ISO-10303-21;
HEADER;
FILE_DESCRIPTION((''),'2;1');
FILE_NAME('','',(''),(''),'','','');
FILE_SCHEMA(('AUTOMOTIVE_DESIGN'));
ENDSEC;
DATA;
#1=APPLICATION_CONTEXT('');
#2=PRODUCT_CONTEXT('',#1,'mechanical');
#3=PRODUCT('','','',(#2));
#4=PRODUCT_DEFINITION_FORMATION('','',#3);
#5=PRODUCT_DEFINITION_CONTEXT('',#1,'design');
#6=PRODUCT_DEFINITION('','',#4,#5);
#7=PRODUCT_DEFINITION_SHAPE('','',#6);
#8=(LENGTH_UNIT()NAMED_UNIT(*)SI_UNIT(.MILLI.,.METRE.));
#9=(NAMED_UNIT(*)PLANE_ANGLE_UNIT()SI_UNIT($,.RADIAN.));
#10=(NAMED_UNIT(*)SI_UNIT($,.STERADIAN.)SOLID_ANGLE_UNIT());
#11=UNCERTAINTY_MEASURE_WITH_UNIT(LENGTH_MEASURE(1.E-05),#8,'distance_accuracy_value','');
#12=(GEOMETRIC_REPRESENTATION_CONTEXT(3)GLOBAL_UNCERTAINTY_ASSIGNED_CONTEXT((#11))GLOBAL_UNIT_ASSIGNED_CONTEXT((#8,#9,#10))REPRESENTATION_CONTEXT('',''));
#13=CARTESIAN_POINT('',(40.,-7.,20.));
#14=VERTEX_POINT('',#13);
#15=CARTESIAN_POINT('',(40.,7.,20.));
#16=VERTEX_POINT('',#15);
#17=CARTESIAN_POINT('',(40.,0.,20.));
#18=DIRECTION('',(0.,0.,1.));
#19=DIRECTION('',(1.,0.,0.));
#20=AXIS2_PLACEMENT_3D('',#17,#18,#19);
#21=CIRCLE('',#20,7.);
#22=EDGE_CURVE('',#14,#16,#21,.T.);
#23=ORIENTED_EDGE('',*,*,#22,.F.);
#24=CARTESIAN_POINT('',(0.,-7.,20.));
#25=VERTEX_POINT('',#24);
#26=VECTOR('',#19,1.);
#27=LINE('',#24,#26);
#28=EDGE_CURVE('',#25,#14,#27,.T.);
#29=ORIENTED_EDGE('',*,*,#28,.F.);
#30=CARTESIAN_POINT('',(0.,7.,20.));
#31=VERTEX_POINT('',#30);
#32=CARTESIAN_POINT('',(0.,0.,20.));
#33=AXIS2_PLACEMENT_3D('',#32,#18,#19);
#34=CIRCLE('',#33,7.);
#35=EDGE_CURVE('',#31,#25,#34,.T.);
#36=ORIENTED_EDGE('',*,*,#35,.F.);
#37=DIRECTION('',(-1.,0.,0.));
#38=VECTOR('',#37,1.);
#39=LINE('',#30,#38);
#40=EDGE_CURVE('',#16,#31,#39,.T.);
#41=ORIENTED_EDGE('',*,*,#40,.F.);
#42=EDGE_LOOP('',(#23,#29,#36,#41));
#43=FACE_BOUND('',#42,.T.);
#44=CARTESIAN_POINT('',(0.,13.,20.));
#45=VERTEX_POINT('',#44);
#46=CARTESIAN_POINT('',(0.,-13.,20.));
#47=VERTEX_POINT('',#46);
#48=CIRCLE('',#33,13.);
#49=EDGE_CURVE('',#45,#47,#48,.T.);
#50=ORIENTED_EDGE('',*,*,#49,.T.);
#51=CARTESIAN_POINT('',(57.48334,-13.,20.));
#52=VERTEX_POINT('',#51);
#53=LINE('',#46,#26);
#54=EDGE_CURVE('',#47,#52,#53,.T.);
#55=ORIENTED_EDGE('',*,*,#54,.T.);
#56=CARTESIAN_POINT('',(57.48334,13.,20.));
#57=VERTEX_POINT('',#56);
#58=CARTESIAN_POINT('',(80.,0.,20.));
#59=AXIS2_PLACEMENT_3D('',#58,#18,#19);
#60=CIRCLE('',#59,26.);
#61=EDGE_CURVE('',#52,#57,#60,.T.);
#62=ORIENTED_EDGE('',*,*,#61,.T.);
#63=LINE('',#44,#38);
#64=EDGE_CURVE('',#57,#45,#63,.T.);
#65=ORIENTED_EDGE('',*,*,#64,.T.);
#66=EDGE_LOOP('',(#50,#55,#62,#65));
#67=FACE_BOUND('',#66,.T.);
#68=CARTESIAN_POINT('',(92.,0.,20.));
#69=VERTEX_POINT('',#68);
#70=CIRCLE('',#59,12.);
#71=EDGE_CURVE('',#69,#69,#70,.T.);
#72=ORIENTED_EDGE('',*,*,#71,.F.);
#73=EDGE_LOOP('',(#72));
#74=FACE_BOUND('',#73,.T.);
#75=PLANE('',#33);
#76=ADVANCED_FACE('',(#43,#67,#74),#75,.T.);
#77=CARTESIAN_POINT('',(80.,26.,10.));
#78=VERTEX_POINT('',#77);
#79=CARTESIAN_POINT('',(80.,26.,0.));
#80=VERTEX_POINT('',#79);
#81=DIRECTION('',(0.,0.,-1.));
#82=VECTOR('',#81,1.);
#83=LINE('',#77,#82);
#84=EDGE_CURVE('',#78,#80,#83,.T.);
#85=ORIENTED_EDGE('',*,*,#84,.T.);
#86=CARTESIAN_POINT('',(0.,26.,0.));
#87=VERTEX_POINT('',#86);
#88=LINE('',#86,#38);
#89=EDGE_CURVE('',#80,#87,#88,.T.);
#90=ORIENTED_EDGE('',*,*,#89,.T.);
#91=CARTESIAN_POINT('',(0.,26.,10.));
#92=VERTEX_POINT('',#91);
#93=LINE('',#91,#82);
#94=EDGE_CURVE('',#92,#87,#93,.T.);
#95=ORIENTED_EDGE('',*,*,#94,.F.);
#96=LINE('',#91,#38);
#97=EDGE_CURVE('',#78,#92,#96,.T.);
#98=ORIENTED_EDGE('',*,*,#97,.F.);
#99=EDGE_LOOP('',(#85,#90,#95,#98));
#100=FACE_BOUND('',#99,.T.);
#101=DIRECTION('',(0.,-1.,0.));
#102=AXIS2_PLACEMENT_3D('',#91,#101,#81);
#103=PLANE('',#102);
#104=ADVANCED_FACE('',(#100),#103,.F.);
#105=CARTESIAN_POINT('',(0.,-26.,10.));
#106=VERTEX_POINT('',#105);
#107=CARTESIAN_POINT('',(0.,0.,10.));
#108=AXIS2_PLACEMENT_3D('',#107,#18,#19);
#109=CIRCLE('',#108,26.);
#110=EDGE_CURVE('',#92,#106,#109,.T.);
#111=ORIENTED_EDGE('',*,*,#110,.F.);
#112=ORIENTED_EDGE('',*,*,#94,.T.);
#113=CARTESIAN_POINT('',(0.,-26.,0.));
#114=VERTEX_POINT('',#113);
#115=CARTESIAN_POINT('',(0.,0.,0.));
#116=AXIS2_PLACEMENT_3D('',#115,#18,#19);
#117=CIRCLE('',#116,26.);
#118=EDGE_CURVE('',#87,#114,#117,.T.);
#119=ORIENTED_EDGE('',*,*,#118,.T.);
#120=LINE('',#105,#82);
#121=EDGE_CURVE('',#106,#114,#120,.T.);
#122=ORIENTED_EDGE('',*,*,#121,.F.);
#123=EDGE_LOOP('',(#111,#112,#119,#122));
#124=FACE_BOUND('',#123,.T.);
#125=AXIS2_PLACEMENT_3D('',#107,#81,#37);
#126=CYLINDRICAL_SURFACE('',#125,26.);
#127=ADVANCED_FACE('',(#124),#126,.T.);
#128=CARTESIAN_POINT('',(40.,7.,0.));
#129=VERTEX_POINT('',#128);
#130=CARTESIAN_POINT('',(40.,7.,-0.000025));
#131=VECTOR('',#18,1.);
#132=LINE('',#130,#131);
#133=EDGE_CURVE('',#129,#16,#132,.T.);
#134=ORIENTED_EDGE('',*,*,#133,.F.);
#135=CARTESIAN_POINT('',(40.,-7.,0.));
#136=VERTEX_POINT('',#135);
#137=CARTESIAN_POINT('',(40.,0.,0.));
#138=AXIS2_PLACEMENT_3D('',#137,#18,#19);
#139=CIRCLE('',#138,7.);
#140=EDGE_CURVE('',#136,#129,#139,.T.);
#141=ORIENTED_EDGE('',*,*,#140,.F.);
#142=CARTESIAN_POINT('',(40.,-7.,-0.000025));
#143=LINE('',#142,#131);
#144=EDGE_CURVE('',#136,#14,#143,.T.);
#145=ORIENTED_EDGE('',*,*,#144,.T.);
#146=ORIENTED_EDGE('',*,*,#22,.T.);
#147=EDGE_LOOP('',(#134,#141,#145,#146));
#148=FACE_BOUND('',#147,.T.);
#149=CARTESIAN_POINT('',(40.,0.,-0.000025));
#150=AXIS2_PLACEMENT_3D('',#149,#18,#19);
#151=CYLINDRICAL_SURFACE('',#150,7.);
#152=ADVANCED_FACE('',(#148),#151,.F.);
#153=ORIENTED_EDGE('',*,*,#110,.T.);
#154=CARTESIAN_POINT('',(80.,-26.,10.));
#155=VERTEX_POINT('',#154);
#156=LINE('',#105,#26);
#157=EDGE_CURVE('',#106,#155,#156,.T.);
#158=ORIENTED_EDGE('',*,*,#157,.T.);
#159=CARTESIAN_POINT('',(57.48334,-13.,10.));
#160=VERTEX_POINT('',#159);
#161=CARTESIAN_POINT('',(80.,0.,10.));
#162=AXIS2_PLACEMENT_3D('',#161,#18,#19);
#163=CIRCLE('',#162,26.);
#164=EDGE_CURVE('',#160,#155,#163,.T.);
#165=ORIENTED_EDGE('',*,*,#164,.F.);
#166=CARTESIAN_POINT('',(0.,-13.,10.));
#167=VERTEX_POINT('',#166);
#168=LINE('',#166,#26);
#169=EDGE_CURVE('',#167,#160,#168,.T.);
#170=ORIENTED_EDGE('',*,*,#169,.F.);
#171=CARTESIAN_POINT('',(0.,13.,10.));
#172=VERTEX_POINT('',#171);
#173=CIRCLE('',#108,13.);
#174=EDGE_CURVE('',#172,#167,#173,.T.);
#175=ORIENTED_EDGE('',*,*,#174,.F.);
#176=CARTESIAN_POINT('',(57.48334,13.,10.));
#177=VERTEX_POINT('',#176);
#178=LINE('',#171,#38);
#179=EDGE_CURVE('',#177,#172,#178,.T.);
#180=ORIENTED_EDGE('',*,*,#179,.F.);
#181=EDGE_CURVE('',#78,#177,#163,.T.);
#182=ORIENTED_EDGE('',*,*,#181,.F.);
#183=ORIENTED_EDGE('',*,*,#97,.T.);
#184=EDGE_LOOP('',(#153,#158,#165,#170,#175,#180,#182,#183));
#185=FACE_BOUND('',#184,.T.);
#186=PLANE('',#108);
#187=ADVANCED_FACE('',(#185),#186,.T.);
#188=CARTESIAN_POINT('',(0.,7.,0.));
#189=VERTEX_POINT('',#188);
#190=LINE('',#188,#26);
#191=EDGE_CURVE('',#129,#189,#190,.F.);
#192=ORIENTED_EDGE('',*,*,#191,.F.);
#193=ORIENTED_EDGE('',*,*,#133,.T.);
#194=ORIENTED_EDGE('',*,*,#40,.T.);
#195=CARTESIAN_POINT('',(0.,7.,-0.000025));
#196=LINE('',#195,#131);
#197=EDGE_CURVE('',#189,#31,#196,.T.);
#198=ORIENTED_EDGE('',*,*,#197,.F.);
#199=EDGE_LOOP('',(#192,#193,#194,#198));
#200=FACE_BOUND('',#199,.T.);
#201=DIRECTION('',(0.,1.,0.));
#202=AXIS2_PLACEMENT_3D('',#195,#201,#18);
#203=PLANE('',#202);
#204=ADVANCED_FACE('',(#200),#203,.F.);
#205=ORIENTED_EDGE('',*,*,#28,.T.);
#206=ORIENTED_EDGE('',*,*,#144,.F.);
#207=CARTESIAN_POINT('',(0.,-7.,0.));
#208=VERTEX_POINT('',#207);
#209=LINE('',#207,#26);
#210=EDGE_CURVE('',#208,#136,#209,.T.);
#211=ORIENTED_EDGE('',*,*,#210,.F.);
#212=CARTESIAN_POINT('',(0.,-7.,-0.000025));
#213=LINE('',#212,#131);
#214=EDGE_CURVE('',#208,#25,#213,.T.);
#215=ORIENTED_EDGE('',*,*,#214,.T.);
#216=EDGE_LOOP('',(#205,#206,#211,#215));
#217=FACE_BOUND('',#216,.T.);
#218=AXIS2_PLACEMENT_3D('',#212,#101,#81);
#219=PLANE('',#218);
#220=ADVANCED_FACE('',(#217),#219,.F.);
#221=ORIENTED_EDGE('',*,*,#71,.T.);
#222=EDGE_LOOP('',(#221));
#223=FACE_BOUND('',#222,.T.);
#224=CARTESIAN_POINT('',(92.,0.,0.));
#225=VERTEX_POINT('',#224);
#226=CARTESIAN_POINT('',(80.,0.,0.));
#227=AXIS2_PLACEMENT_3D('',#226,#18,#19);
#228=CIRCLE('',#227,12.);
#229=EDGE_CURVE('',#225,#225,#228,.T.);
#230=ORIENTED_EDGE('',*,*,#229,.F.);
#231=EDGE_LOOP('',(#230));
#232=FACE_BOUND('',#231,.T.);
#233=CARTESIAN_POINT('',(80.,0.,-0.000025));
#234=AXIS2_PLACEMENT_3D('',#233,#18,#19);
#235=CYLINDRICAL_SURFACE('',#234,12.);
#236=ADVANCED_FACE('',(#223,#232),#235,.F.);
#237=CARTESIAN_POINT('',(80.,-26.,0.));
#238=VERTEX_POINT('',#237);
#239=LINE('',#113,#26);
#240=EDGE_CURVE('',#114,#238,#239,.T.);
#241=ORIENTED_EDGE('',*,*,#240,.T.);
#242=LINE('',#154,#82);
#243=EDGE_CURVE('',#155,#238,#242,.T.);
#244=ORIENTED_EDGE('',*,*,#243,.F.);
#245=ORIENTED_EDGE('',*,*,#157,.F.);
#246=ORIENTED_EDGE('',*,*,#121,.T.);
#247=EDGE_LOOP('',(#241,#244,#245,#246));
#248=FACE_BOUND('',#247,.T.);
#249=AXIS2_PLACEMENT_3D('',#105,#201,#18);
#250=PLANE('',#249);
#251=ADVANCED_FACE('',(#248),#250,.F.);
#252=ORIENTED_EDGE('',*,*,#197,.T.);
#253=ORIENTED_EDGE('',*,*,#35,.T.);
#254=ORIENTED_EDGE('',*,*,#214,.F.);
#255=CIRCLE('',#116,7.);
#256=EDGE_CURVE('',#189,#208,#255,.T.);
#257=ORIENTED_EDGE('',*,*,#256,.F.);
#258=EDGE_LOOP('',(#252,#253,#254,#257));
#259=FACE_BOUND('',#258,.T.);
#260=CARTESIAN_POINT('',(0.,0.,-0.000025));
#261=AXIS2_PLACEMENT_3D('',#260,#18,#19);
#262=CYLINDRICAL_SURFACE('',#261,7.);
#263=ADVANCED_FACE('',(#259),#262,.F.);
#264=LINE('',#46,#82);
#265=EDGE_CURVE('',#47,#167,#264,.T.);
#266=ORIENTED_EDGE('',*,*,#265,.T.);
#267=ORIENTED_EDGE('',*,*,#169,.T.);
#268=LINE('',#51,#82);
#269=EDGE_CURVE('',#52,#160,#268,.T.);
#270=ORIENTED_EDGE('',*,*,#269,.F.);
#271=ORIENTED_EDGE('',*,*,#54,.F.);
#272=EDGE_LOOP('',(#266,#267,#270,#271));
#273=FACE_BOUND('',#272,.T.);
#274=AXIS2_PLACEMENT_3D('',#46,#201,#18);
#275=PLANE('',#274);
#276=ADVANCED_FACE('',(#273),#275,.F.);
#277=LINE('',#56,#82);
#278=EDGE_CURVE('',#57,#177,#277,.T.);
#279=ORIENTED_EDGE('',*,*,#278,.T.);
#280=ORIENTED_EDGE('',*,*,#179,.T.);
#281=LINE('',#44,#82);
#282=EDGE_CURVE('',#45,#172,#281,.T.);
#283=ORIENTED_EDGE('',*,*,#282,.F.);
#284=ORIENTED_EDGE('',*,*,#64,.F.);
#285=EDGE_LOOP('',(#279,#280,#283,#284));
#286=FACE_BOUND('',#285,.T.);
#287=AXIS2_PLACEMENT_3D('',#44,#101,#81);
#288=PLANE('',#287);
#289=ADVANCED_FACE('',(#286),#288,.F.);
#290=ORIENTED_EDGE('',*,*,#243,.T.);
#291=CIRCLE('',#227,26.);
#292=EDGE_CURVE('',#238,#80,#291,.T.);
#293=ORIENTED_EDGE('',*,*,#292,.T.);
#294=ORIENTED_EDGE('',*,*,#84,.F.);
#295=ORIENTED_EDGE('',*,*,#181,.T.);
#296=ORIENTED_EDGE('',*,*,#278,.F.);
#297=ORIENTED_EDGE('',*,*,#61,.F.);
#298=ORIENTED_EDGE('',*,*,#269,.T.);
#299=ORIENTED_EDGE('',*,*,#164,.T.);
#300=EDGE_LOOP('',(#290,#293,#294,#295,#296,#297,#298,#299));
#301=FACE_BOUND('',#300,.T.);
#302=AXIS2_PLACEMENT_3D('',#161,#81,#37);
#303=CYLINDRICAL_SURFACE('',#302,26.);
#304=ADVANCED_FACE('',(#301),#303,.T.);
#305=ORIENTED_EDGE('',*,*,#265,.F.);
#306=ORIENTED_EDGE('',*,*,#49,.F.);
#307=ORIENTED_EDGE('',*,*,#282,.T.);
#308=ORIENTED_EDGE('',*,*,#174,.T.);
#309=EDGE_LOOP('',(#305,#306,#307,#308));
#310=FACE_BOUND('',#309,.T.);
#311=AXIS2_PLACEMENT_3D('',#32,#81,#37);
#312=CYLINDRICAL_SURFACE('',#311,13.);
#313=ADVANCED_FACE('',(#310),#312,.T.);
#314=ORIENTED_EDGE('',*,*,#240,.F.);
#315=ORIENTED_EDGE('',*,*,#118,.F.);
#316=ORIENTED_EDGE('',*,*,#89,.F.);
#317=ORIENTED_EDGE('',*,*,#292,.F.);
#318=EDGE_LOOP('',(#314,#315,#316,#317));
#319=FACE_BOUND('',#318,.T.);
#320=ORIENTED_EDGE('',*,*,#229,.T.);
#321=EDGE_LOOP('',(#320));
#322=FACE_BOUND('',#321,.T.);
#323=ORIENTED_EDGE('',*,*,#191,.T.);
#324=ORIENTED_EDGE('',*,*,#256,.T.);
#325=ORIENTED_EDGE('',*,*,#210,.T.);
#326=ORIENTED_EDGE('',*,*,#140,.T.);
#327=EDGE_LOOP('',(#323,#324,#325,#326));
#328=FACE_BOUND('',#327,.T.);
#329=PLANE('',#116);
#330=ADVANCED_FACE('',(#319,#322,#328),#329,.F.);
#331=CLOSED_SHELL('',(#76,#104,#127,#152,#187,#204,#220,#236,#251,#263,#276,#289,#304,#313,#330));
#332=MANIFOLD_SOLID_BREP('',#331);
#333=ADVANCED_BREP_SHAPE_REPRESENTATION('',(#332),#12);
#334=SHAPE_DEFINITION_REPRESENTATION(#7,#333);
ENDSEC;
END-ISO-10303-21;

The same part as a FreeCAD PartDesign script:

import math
import FreeCAD as App
import Part
import Sketcher
Q = App.Units.Quantity

doc = App.newDocument("Part")
params = doc.addObject("Spreadsheet::Sheet", "Params")
for row, (alias, value) in enumerate([
    ("sketch1_radius", "26 mm"),
    ("sketch1_width", "80 mm"),
    ("pad1_length", "10 mm"),
    ("sketch2_radius", "13 mm"),
    ("sketch2_radius2", "26 mm"),
    ("pad2_length", "10 mm"),
    ("sketch3_diameter", "24 mm"),
    ("sketch3_radius", "7 mm"),
    ("sketch3_width", "40 mm"),
], start=1):
    params.set(f"A{row}", alias)
    params.set(f"B{row}", "=" + value)
    params.setAlias(f"B{row}", alias)

body = doc.addObject("PartDesign::Body", "Body")

sketch1 = doc.addObject("Sketcher::SketchObject", "Sketch")
body.addObject(sketch1)
sketch1.AttachmentSupport = (doc.XY_Plane, [""])
sketch1.MapMode = "FlatFace"
sketch1.addGeometry([
    Part.LineSegment(App.Vector(80, 26, 0), App.Vector(0, 26, 0)),
    Part.ArcOfCircle(Part.Circle(App.Vector(0, 0, 0), App.Vector(0, 0, 1), 26), math.radians(90), math.radians(270)),
    Part.LineSegment(App.Vector(0, -26, 0), App.Vector(80, -26, 0)),
    Part.ArcOfCircle(Part.Circle(App.Vector(80, 0, 0), App.Vector(0, 0, 1), 26), math.radians(-90), math.radians(90)),
], False)
sketch1.addConstraint([
    Sketcher.Constraint("Tangent", 0, 2, 1, 1),
    Sketcher.Constraint("Tangent", 1, 2, 2, 1),
    Sketcher.Constraint("Tangent", 2, 2, 3, 1),
    Sketcher.Constraint("Tangent", 3, 2, 0, 1),
    Sketcher.Constraint("Horizontal", 0),
    Sketcher.Constraint("Horizontal", 2),
    Sketcher.Constraint("Coincident", 1, 3, -1, 1),
    Sketcher.Constraint("Radius", 1, Q("26 mm")),
    Sketcher.Constraint("DistanceX", 0, 2, 0, 1, Q("80 mm")),
])
sketch1.setExpression("Constraints[7]", "Params.sketch1_radius")
sketch1.setExpression("Constraints[8]", "Params.sketch1_width")
pad1 = doc.addObject("PartDesign::Pad", "Pad")
body.addObject(pad1)
pad1.Profile = sketch1
pad1.setExpression("Length", "Params.pad1_length")

sketch2 = doc.addObject("Sketcher::SketchObject", "Sketch001")
body.addObject(sketch2)
sketch2.AttachmentSupport = (doc.XY_Plane, [""])
sketch2.MapMode = "FlatFace"
sketch2.AttachmentOffset = App.Placement(App.Vector(0, 0, 10), App.Rotation())
sketch2.addGeometry([
    Part.LineSegment(App.Vector(57, 13, 0), App.Vector(0, 13, 0)),
    Part.ArcOfCircle(Part.Circle(App.Vector(0, 0, 0), App.Vector(0, 0, 1), 13), math.radians(90), math.radians(270)),
    Part.LineSegment(App.Vector(0, -13, 0), App.Vector(57, -13, 0)),
    Part.ArcOfCircle(Part.Circle(App.Vector(80, 0, 0), App.Vector(0, 0, 1), 26), math.radians(-150), math.radians(150)),
], False)
sketch2.addConstraint([
    Sketcher.Constraint("Tangent", 0, 2, 1, 1),
    Sketcher.Constraint("Tangent", 1, 2, 2, 1),
    Sketcher.Constraint("Coincident", 2, 2, 3, 1),
    Sketcher.Constraint("Coincident", 3, 2, 0, 1),
    Sketcher.Constraint("Horizontal", 0),
    Sketcher.Constraint("Horizontal", 2),
    Sketcher.Constraint("Coincident", 1, 3, -1, 1),
    Sketcher.Constraint("PointOnObject", 3, 3, -1),
    Sketcher.Constraint("Radius", 1, Q("13 mm")),
    Sketcher.Constraint("Radius", 3, Q("26 mm")),
    Sketcher.Constraint("DistanceX", -1, 1, 3, 3, Q("80 mm")),
])
sketch2.setExpression("Constraints[8]", "Params.sketch2_radius")
sketch2.setExpression("Constraints[9]", "Params.sketch2_radius2")
pad2 = doc.addObject("PartDesign::Pad", "Pad001")
body.addObject(pad2)
pad2.Profile = sketch2
pad2.setExpression("Length", "Params.pad2_length")

sketch3 = doc.addObject("Sketcher::SketchObject", "Sketch002")
body.addObject(sketch3)
sketch3.AttachmentSupport = (doc.XY_Plane, [""])
sketch3.MapMode = "FlatFace"
sketch3.AttachmentOffset = App.Placement(App.Vector(0, 0, 20), App.Rotation())
sketch3.addGeometry([
    Part.Circle(App.Vector(80, 0, 0), App.Vector(0, 0, 1), 12),
    Part.LineSegment(App.Vector(40, 7, 0), App.Vector(0, 7, 0)),
    Part.ArcOfCircle(Part.Circle(App.Vector(0, 0, 0), App.Vector(0, 0, 1), 7), math.radians(90), math.radians(270)),
    Part.LineSegment(App.Vector(0, -7, 0), App.Vector(40, -7, 0)),
    Part.ArcOfCircle(Part.Circle(App.Vector(40, 0, 0), App.Vector(0, 0, 1), 7), math.radians(-90), math.radians(90)),
], False)
sketch3.addConstraint([
    Sketcher.Constraint("Tangent", 1, 2, 2, 1),
    Sketcher.Constraint("Tangent", 2, 2, 3, 1),
    Sketcher.Constraint("Tangent", 3, 2, 4, 1),
    Sketcher.Constraint("Tangent", 4, 2, 1, 1),
    Sketcher.Constraint("Horizontal", 1),
    Sketcher.Constraint("Horizontal", 3),
    Sketcher.Constraint("Coincident", 2, 3, -1, 1),
    Sketcher.Constraint("PointOnObject", 0, 3, -1),
    Sketcher.Constraint("Diameter", 0, Q("24 mm")),
    Sketcher.Constraint("Radius", 2, Q("7 mm")),
    Sketcher.Constraint("DistanceX", 1, 2, 1, 1, Q("40 mm")),
    Sketcher.Constraint("DistanceX", -1, 1, 0, 3, Q("80 mm")),
])
sketch3.setExpression("Constraints[8]", "Params.sketch3_diameter")
sketch3.setExpression("Constraints[9]", "Params.sketch3_radius")
sketch3.setExpression("Constraints[10]", "Params.sketch3_width")
pocket1 = doc.addObject("PartDesign::Pocket", "Pocket")
body.addObject(pocket1)
pocket1.Profile = sketch3
pocket1.Type = "ThroughAll"

doc.recompute()
